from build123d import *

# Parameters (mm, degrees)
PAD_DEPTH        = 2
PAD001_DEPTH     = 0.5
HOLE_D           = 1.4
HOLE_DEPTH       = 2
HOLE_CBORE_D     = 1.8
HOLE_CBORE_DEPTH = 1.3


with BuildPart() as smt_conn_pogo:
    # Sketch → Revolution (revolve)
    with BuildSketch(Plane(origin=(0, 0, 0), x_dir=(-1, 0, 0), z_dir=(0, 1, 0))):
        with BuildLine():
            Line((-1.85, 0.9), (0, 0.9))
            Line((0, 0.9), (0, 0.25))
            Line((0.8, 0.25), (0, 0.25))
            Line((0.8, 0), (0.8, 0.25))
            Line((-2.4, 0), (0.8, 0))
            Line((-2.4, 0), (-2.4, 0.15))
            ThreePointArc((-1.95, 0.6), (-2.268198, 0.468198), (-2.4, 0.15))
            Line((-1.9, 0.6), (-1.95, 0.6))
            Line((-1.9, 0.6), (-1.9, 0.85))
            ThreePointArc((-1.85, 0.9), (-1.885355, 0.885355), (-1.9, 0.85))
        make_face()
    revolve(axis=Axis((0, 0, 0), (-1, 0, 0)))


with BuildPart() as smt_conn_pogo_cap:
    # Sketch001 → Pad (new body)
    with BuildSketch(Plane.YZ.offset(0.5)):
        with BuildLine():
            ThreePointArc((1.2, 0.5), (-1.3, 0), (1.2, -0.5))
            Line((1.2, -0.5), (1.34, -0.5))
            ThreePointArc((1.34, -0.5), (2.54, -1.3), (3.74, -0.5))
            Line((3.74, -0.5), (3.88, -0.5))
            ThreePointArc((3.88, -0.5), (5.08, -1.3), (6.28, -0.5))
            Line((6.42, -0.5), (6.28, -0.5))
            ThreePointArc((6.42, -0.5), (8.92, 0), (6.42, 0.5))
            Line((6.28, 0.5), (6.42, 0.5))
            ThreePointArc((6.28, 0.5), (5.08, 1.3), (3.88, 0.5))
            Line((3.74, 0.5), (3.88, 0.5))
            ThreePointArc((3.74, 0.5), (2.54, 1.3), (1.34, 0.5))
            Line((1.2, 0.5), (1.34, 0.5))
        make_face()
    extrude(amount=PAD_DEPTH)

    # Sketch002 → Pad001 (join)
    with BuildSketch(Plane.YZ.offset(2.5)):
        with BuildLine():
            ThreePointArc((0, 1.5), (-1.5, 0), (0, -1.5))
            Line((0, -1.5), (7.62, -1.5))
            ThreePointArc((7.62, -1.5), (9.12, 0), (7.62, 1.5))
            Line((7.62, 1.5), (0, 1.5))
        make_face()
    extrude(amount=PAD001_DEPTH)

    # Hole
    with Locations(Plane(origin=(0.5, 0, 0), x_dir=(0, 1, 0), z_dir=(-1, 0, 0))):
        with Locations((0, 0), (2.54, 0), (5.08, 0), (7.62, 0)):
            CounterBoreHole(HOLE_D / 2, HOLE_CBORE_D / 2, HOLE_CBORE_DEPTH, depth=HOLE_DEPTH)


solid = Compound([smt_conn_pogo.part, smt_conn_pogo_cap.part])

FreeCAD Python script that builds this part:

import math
import FreeCAD as App
import Part
import Sketcher
from FreeCAD import Vector
Q = App.Units.Quantity

doc = App.newDocument("Part")
body = doc.addObject("PartDesign::Body", "Body")

# Sketch on XZ plane
sketch1 = body.newObject("Sketcher::SketchObject", "Sketch")
sketch1.AttachmentSupport = (doc.getObject("XZ_Plane"), [""])
sketch1.MapMode = "FlatFace"
sketch1.addGeometry([
    Part.LineSegment(Vector(0, 0.9, 0), Vector(1.85, 0.9, 0)),  # 0
    Part.ArcOfCircle(Part.Circle(Vector(1.85, 0.85, 0), Vector(0, 0, 1), 0.05), math.radians(0), math.radians(90)),  # 1
    Part.LineSegment(Vector(1.9, 0.85, 0), Vector(1.9, 0.6, 0)),  # 2
    Part.LineSegment(Vector(1.9, 0.6, 0), Vector(1.95, 0.6, 0)),  # 3
    Part.ArcOfCircle(Part.Circle(Vector(1.95, 0.15, 0), Vector(0, 0, 1), 0.45), math.radians(0), math.radians(90)),  # 4
    Part.LineSegment(Vector(2.4, 0.15, 0), Vector(2.4, 0, 0)),  # 5
    Part.LineSegment(Vector(2.4, 0, 0), Vector(-0.8, 0, 0)),  # 6
    Part.LineSegment(Vector(-0.8, 0, 0), Vector(-0.8, 0.25, 0)),  # 7
    Part.LineSegment(Vector(-0.8, 0.25, 0), Vector(0, 0.25, 0)),  # 8
    Part.LineSegment(Vector(0, 0.25, 0), Vector(0, 0.9, 0)),  # 9
], False)
sketch1.addConstraint([
    Sketcher.Constraint("Coincident", 0, 2, 1, 2),
    Sketcher.Constraint("Coincident", 1, 1, 2, 1),
    Sketcher.Constraint("Coincident", 2, 2, 3, 1),
    Sketcher.Constraint("Tangent", 3, 2, 4, 2),
    Sketcher.Constraint("Tangent", 4, 1, 5, 1),
    Sketcher.Constraint("Coincident", 5, 2, 6, 1),
    Sketcher.Constraint("Coincident", 6, 2, 7, 1),
    Sketcher.Constraint("Coincident", 7, 2, 8, 1),
    Sketcher.Constraint("Coincident", 8, 2, 9, 1),
    Sketcher.Constraint("Coincident", 9, 2, 0, 1),
    Sketcher.Constraint("Horizontal", 0),
    Sketcher.Constraint("Vertical", 2),
    Sketcher.Constraint("Horizontal", 3),
    Sketcher.Constraint("Vertical", 5),
    Sketcher.Constraint("Horizontal", 6),
    Sketcher.Constraint("Vertical", 7),
    Sketcher.Constraint("Horizontal", 8),
    Sketcher.Constraint("Vertical", 9),
    Sketcher.Constraint("PointOnObject", 5, 2, -1),
    Sketcher.Constraint("PointOnObject", 8, 2, -2),
    Sketcher.Constraint("Vertical", 1, 3, 0, 2),
    Sketcher.Constraint("Equal", 2, 7),
    Sketcher.Constraint("Radius", 1, Q("0.050001 mm")),
    Sketcher.Constraint("Radius", 4, Q("0.45 mm")),
    Sketcher.Constraint("DistanceX", 6, 2, 6, 1, Q("3.2 mm")),
    Sketcher.Constraint("DistanceX", 8, 1, 8, 2, Q("0.8 mm")),
    Sketcher.Constraint("DistanceX", 0, 1, 0, 2, Q("1.85 mm")),
    Sketcher.Constraint("DistanceY", 2, 2, 2, 1, Q("0.25 mm")),
    Sketcher.Constraint("DistanceY", 5, 2, 5, 1, Q("0.15 mm")),
    Sketcher.Constraint("DistanceY", 9, 1, 9, 2, Q("0.65 mm")),
])
revolution = body.newObject("PartDesign::Revolution", "Revolution")
revolution.Profile = sketch1
revolution.ReferenceAxis = (sketch1, ["H_Axis"])
revolution.Angle = 360
body2 = doc.addObject("PartDesign::Body", "Body001")

# Sketch on YZ plane
sketch2 = body2.newObject("Sketcher::SketchObject", "Sketch001")
sketch2.AttachmentSupport = (doc.getObject("YZ_Plane001"), [""])
sketch2.MapMode = "FlatFace"
sketch2.AttachmentOffset = App.Placement(Vector(0, 0, 0.5), App.Rotation())
sketch2.addGeometry([
    Part.ArcOfCircle(Part.Circle(Vector(0, 0, 0), Vector(0, 0, 1), 1.3), math.radians(23), math.radians(337)),  # 0
    Part.LineSegment(Vector(1.2, -0.5, 0), Vector(1.34, -0.5, 0)),  # 1
    Part.ArcOfCircle(Part.Circle(Vector(2.54, 0, 0), Vector(0, 0, 1), 1.3), math.radians(-157), math.radians(-23)),  # 2
    Part.LineSegment(Vector(3.74, -0.5, 0), Vector(3.88, -0.5, 0)),  # 3
    Part.ArcOfCircle(Part.Circle(Vector(5.08, 0, 0), Vector(0, 0, 1), 1.3), math.radians(-157), math.radians(-23)),  # 4
    Part.LineSegment(Vector(6.28, -0.5, 0), Vector(6.42, -0.5, 0)),  # 5
    Part.ArcOfCircle(Part.Circle(Vector(7.62, 0, 0), Vector(0, 0, 1), 1.3), math.radians(-157), math.radians(157)),  # 6
    Part.LineSegment(Vector(6.42, 0.5, 0), Vector(6.28, 0.5, 0)),  # 7
    Part.ArcOfCircle(Part.Circle(Vector(5.08, 0, 0), Vector(0, 0, 1), 1.3), math.radians(23), math.radians(157)),  # 8
    Part.LineSegment(Vector(3.88, 0.5, 0), Vector(3.74, 0.5, 0)),  # 9
    Part.ArcOfCircle(Part.Circle(Vector(2.54, 0, 0), Vector(0, 0, 1), 1.3), math.radians(23), math.radians(157)),  # 10
    Part.LineSegment(Vector(1.34, 0.5, 0), Vector(1.2, 0.5, 0)),  # 11
], False)
sketch2.addConstraint([
    Sketcher.Constraint("Coincident", 0, 2, 1, 1),
    Sketcher.Constraint("Coincident", 1, 2, 2, 1),
    Sketcher.Constraint("Coincident", 2, 2, 3, 1),
    Sketcher.Constraint("Coincident", 3, 2, 4, 1),
    Sketcher.Constraint("Coincident", 4, 2, 5, 1),
    Sketcher.Constraint("Coincident", 5, 2, 6, 1),
    Sketcher.Constraint("Coincident", 6, 2, 7, 1),
    Sketcher.Constraint("Coincident", 7, 2, 8, 1),
    Sketcher.Constraint("Coincident", 8, 2, 9, 1),
    Sketcher.Constraint("Coincident", 9, 2, 10, 1),
    Sketcher.Constraint("Coincident", 10, 2, 11, 1),
    Sketcher.Constraint("Coincident", 11, 2, 0, 1),
    Sketcher.Constraint("Horizontal", 1),
    Sketcher.Constraint("Horizontal", 3),
    Sketcher.Constraint("Horizontal", 5),
    Sketcher.Constraint("Horizontal", 7),
    Sketcher.Constraint("Horizontal", 9),
    Sketcher.Constraint("Horizontal", 11),
    Sketcher.Constraint("Coincident", 0, 3, -1, 1),
    Sketcher.Constraint("Coincident", 8, 3, 4, 3),
    Sketcher.Constraint("Coincident", 10, 3, 2, 3),
    Sketcher.Constraint("Equal", 0, 2),
    Sketcher.Constraint("Equal", 2, 4),
    Sketcher.Constraint("Equal", 4, 6),
    Sketcher.Constraint("Equal", 6, 8),
    Sketcher.Constraint("Equal", 8, 10),
    Sketcher.Constraint("Symmetric", 5, 2, 6, 2, -1),
    Sketcher.Constraint("Symmetric", 3, 2, 8, 2, -1),
    Sketcher.Constraint("Symmetric", 1, 2, 10, 2, -1),
    Sketcher.Constraint("Horizontal", 1, 2, 2, 2),
    Sketcher.Constraint("Horizontal", 3, 2, 4, 2),
    Sketcher.Constraint("Equal", 1, 3),
    Sketcher.Constraint("Equal", 3, 5),
    Sketcher.Constraint("Radius", 0, Q("1.3 mm")),
    Sketcher.Constraint("DistanceY", 5, 2, 6, 2, Q("1 mm")),
    Sketcher.Constraint("DistanceX", 1, 1, 1, 2, Q("0.14 mm")),
])
pad1 = body2.newObject("PartDesign::Pad", "Pad")
pad1.Profile = sketch2
pad1.Length = 2

# Sketch on YZ plane
sketch3 = body2.newObject("Sketcher::SketchObject", "Sketch002")
sketch3.AttachmentSupport = (doc.getObject("YZ_Plane001"), [""])
sketch3.MapMode = "FlatFace"
sketch3.AttachmentOffset = App.Placement(Vector(0, 0, 2.5), App.Rotation())
sketch3.addGeometry([
    Part.ArcOfCircle(Part.Circle(Vector(0, 0, 0), Vector(0, 0, 1), 1.5), math.radians(90), math.radians(270)),
    Part.LineSegment(Vector(0, -1.5, 0), Vector(7.6, -1.5, 0)),
    Part.ArcOfCircle(Part.Circle(Vector(7.6, 0, 0), Vector(0, 0, 1), 1.5), math.radians(-90), math.radians(90)),
    Part.LineSegment(Vector(7.6, 1.5, 0), Vector(0, 1.5, 0)),
], False)
sketch3.addConstraint([
    Sketcher.Constraint("Tangent", 0, 2, 1, 1),
    Sketcher.Constraint("Tangent", 1, 2, 2, 1),
    Sketcher.Constraint("Tangent", 2, 2, 3, 1),
    Sketcher.Constraint("Tangent", 3, 2, 0, 1),
    Sketcher.Constraint("Horizontal", 1),
    Sketcher.Constraint("Horizontal", 3),
    Sketcher.Constraint("Coincident", 0, 3, -1, 1),
    Sketcher.Constraint("Radius", 0, Q("1.5 mm")),
    Sketcher.Constraint("DistanceX", 1, 1, 1, 2, Q("7.62 mm")),
])
pad2 = body2.newObject("PartDesign::Pad", "Pad001")
pad2.Profile = sketch3
pad2.Length = 0.5

# Sketch on YZ plane
sketch4 = body2.newObject("Sketcher::SketchObject", "Sketch003")
sketch4.AttachmentSupport = (doc.getObject("YZ_Plane001"), [""])
sketch4.MapMode = "FlatFace"
sketch4.AttachmentOffset = App.Placement(Vector(0, 0, 0.5), App.Rotation())
sketch4.addGeometry([
    Part.Circle(Vector(0, 0, 0), Vector(0, 0, 1), 0.7),
    Part.Circle(Vector(2.5, 0, 0), Vector(0, 0, 1), 0.7),
    Part.Circle(Vector(5.1, 0, 0), Vector(0, 0, 1), 0.7),
    Part.Circle(Vector(7.6, 0, 0), Vector(0, 0, 1), 0.7),
], False)
sketch4.addConstraint([
    Sketcher.Constraint("Coincident", 0, 3, -1, 1),
    Sketcher.Constraint("Equal", 0, 1),
    Sketcher.Constraint("Equal", 1, 2),
    Sketcher.Constraint("Equal", 2, 3),
    Sketcher.Constraint("PointOnObject", 1, 3, -1),
    Sketcher.Constraint("PointOnObject", 2, 3, -1),
    Sketcher.Constraint("PointOnObject", 3, 3, -1),
    Sketcher.Constraint("Diameter", 0, Q("1.4 mm")),
    Sketcher.Constraint("DistanceX", -1, 1, 1, 3, Q("2.54 mm")),
    Sketcher.Constraint("DistanceX", -1, 1, 2, 3, Q("5.08 mm")),
    Sketcher.Constraint("DistanceX", -1, 1, 3, 3, Q("7.62 mm")),
])
doc.recompute()
hole = body2.newObject("PartDesign::Hole", "Hole")
hole.Profile = sketch4
hole.ThreadType = "None"
hole.Diameter = 1.4
hole.DepthType = "Dimension"
hole.Depth = 2
hole.DrillPoint = "Flat"
hole.HoleCutType = "Counterbore"
hole.HoleCutDiameter = 1.8
hole.HoleCutDepth = 1.3
hole.Reversed = True

doc.recompute()
